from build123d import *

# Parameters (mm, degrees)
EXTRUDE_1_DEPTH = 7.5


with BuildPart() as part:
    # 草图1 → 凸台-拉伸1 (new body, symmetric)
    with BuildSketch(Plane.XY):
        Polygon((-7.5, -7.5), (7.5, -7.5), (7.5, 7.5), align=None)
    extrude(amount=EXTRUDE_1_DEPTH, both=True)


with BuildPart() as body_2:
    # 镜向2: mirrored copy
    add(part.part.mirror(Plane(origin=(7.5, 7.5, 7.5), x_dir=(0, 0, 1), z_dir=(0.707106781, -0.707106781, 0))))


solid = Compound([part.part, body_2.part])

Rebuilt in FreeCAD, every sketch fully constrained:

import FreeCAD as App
import Part
import Sketcher
Q = App.Units.Quantity


def add_polygon(sketch, points):
    """Adds a closed chain of lines whose ends are joined by coincident constraints."""
    first, n = sketch.GeometryCount, len(points)
    for a, b in zip(points, points[1:] + points[:1]):
        sketch.addGeometry(Part.LineSegment(App.Vector(*a, 0), App.Vector(*b, 0)), False)
    for i in range(n):
        sketch.addConstraint(Sketcher.Constraint("Coincident", first + i, 2, first + (i + 1) % n, 1))

doc = App.newDocument("Part")
body = doc.addObject("PartDesign::Body", "Body")

sketch1 = body.newObject("Sketcher::SketchObject", "Sketch")
sketch1.AttachmentSupport = (doc.getObject("XY_Plane"), [""])
sketch1.MapMode = "FlatFace"
add_polygon(sketch1, [(-7.5, -7.5), (7.5, -7.5), (7.5, 7.5)])
sketch1.addConstraint([
    Sketcher.Constraint("Horizontal", 0),
    Sketcher.Constraint("Vertical", 1),
    Sketcher.Constraint("Symmetric", 1, 2, 2, 2, -1, 1),
    Sketcher.Constraint("Equal", 0, 1),
    Sketcher.Constraint("DistanceX", 0, 1, 0, 2, Q("15 mm")),
])
pad1 = body.newObject("PartDesign::Pad", "Pad")
pad1.Profile = sketch1
pad1.Length = 15
pad1.Midplane = True
body2 = doc.addObject("PartDesign::Body", "Body001")
doc.recompute()

mirroring = doc.addObject("Part::Mirroring", "Mirroring")
mirroring.Source = body
mirroring.Base = App.Vector(7.5, 7.5, 7.5)
mirroring.Normal = App.Vector(0.707106781, -0.707106781, 0)
body2.BaseFeature = mirroring
doc.recompute()
mirroring.Visibility = False

doc.recompute()
